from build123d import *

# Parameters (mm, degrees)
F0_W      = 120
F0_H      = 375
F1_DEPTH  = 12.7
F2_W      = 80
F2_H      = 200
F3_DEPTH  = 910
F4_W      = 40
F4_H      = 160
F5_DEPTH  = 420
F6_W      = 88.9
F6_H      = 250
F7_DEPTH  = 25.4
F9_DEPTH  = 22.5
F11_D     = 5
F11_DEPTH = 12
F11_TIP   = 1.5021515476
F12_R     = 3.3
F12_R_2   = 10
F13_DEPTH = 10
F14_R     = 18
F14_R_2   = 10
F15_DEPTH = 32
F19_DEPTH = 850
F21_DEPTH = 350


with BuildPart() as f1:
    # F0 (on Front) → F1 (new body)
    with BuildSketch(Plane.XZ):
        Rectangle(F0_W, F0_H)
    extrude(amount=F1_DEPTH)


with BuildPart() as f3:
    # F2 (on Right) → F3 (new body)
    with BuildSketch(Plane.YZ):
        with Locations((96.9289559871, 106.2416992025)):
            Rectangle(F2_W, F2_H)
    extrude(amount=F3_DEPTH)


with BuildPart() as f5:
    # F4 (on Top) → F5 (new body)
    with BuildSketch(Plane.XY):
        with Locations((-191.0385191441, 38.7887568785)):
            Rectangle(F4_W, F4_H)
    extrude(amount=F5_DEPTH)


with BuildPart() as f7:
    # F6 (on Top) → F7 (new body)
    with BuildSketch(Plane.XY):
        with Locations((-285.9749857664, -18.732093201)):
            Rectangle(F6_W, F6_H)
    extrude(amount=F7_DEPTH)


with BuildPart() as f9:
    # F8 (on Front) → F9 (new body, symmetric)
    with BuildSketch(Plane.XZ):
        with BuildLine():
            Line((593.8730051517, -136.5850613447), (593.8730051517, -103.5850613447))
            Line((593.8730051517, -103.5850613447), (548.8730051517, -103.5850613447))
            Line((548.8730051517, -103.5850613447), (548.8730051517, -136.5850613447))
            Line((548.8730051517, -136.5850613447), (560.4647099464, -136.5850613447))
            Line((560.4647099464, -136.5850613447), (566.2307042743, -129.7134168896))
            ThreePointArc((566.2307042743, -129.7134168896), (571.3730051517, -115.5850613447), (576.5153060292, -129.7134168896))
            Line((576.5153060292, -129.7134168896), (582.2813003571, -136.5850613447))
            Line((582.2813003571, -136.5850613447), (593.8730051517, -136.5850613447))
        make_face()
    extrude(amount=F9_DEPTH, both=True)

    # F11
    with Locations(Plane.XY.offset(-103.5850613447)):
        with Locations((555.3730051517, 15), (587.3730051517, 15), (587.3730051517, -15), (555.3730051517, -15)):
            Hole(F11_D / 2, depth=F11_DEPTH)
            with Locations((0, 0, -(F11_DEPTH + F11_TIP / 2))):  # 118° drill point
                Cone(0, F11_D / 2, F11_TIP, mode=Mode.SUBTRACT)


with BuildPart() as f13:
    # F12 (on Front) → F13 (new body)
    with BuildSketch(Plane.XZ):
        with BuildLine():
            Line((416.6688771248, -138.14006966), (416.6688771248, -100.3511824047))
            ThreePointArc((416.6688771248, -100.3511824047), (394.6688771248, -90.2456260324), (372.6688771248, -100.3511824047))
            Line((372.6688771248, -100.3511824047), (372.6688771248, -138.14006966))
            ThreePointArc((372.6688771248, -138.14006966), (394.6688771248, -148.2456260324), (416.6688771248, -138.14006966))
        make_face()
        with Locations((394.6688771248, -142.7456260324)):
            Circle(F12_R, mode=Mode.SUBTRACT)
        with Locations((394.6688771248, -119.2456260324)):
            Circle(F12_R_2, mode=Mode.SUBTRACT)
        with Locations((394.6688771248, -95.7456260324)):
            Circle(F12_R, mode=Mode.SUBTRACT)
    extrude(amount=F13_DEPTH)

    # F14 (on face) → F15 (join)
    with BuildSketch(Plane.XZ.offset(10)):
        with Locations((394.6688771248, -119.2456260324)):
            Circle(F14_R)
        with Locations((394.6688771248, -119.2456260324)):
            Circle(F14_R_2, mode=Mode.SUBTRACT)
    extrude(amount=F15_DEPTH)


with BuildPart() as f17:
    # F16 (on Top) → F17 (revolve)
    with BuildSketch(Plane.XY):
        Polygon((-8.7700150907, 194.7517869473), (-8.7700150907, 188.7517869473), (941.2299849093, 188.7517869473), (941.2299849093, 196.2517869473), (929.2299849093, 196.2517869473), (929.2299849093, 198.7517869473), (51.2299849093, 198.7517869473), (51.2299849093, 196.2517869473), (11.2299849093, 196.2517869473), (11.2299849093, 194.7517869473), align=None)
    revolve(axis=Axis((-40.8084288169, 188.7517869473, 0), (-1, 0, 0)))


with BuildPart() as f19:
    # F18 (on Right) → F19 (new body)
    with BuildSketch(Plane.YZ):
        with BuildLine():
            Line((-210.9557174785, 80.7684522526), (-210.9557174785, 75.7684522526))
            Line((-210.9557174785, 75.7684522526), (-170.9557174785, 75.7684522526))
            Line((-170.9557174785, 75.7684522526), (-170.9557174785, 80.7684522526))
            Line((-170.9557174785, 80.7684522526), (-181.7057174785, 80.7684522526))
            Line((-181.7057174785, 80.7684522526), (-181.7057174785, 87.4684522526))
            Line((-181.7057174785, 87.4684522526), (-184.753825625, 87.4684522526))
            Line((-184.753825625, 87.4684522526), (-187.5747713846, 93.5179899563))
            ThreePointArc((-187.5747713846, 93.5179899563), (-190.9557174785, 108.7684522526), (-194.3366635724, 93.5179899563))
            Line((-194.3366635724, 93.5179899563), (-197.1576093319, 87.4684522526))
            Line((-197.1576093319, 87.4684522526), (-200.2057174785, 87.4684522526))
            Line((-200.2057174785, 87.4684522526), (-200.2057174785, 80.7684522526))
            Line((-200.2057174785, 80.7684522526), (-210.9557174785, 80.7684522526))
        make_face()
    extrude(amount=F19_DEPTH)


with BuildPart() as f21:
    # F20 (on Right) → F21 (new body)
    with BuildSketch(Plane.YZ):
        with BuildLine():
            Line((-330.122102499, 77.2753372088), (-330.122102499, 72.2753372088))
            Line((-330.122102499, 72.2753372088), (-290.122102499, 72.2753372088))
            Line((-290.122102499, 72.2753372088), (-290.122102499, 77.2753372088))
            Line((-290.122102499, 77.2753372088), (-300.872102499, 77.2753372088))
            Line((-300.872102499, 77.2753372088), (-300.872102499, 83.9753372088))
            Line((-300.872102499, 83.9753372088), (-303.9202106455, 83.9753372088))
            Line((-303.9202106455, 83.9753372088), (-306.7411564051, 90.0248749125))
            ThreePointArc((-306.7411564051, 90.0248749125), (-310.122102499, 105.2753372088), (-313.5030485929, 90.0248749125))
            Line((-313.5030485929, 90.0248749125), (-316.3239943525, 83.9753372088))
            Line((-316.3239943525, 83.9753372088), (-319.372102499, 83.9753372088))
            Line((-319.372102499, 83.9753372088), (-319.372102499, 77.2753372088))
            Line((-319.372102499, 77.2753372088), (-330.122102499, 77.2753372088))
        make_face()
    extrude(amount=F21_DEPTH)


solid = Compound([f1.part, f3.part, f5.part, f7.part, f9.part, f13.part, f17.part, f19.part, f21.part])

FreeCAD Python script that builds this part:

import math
import FreeCAD as App
import Part
import Sketcher

V = App.Vector
Q = App.Units.Quantity

doc = App.newDocument("Part")
body = doc.addObject("PartDesign::Body", "Body")

# Sketch on XZ plane
sketch1 = body.newObject("Sketcher::SketchObject", "Sketch")
sketch1.AttachmentSupport = (doc.getObject("XZ_Plane"), [""])
sketch1.MapMode = "FlatFace"
sketch1.addGeometry(Part.LineSegment(V(-60, 188, 0), V(-60, -188, 0)), False)
sketch1.addGeometry(Part.LineSegment(V(-60, -188, 0), V(60, -188, 0)), False)
sketch1.addGeometry(Part.LineSegment(V(60, -188, 0), V(60, 188, 0)), False)
sketch1.addGeometry(Part.LineSegment(V(60, 188, 0), V(-60, 188, 0)), False)
sketch1.addConstraint(Sketcher.Constraint("Coincident", 0, 2, 1, 1))
sketch1.addConstraint(Sketcher.Constraint("Coincident", 1, 2, 2, 1))
sketch1.addConstraint(Sketcher.Constraint("Coincident", 2, 2, 3, 1))
sketch1.addConstraint(Sketcher.Constraint("Coincident", 3, 2, 0, 1))
sketch1.addConstraint(Sketcher.Constraint("Vertical", 0))
sketch1.addConstraint(Sketcher.Constraint("Horizontal", 1))
sketch1.addConstraint(Sketcher.Constraint("Vertical", 2))
sketch1.addConstraint(Sketcher.Constraint("Horizontal", 3))
sketch1.addConstraint(Sketcher.Constraint("Symmetric", 0, 2, 2, 2, -1, 1))
sketch1.addConstraint(Sketcher.Constraint("DistanceX", 1, 1, 1, 2, 120.0))
sketch1.addConstraint(Sketcher.Constraint("DistanceY", 0, 2, 0, 1, 375.0))
pad1 = body.newObject("PartDesign::Pad", "Pad")
pad1.Profile = sketch1
pad1.Length = 12.7
body2 = doc.addObject("PartDesign::Body", "Body001")

# Sketch on YZ plane
sketch2 = body2.newObject("Sketcher::SketchObject", "Sketch001")
sketch2.AttachmentSupport = (doc.getObject("YZ_Plane001"), [""])
sketch2.MapMode = "FlatFace"
sketch2.addGeometry(Part.LineSegment(V(57, 206, 0), V(57, 6, 0)), False)
sketch2.addGeometry(Part.LineSegment(V(57, 6, 0), V(137, 6, 0)), False)
sketch2.addGeometry(Part.LineSegment(V(137, 6, 0), V(137, 206, 0)), False)
sketch2.addGeometry(Part.LineSegment(V(137, 206, 0), V(57, 206, 0)), False)
sketch2.addConstraint(Sketcher.Constraint("Coincident", 0, 2, 1, 1))
sketch2.addConstraint(Sketcher.Constraint("Coincident", 1, 2, 2, 1))
sketch2.addConstraint(Sketcher.Constraint("Coincident", 2, 2, 3, 1))
sketch2.addConstraint(Sketcher.Constraint("Coincident", 3, 2, 0, 1))
sketch2.addConstraint(Sketcher.Constraint("Vertical", 0))
sketch2.addConstraint(Sketcher.Constraint("Horizontal", 1))
sketch2.addConstraint(Sketcher.Constraint("Vertical", 2))
sketch2.addConstraint(Sketcher.Constraint("Horizontal", 3))
sketch2.addConstraint(Sketcher.Constraint("DistanceX", 1, 1, 1, 2, 80.0))
sketch2.addConstraint(Sketcher.Constraint("DistanceY", 0, 2, 0, 1, 200.0))
sketch2.addConstraint(Sketcher.Constraint("DistanceY", -1, 1, 0, 2, 6.241699))
sketch2.addConstraint(Sketcher.Constraint("DistanceX", -1, 1, 0, 2, 56.928956))
pad2 = body2.newObject("PartDesign::Pad", "Pad001")
pad2.Profile = sketch2
pad2.Length = 910
body3 = doc.addObject("PartDesign::Body", "Body002")

# Sketch on XY plane
sketch3 = body3.newObject("Sketcher::SketchObject", "Sketch002")
sketch3.AttachmentSupport = (doc.getObject("XY_Plane002"), [""])
sketch3.MapMode = "FlatFace"
sketch3.addGeometry(Part.LineSegment(V(-211, 119, 0), V(-211, -41, 0)), False)
sketch3.addGeometry(Part.LineSegment(V(-211, -41, 0), V(-171, -41, 0)), False)
sketch3.addGeometry(Part.LineSegment(V(-171, -41, 0), V(-171, 119, 0)), False)
sketch3.addGeometry(Part.LineSegment(V(-171, 119, 0), V(-211, 119, 0)), False)
sketch3.addConstraint(Sketcher.Constraint("Coincident", 0, 2, 1, 1))
sketch3.addConstraint(Sketcher.Constraint("Coincident", 1, 2, 2, 1))
sketch3.addConstraint(Sketcher.Constraint("Coincident", 2, 2, 3, 1))
sketch3.addConstraint(Sketcher.Constraint("Coincident", 3, 2, 0, 1))
sketch3.addConstraint(Sketcher.Constraint("Vertical", 0))
sketch3.addConstraint(Sketcher.Constraint("Horizontal", 1))
sketch3.addConstraint(Sketcher.Constraint("Vertical", 2))
sketch3.addConstraint(Sketcher.Constraint("Horizontal", 3))
sketch3.addConstraint(Sketcher.Constraint("DistanceX", 1, 1, 1, 2, 40.0))
sketch3.addConstraint(Sketcher.Constraint("DistanceY", 0, 2, 0, 1, 160.0))
sketch3.addConstraint(Sketcher.Constraint("DistanceX", 0, 2, -1, 1, 211.038519))
sketch3.addConstraint(Sketcher.Constraint("DistanceY", 0, 2, -1, 1, 41.211243))
pad3 = body3.newObject("PartDesign::Pad", "Pad002")
pad3.Profile = sketch3
pad3.Length = 420
body4 = doc.addObject("PartDesign::Body", "Body003")

# Sketch on XY plane
sketch4 = body4.newObject("Sketcher::SketchObject", "Sketch003")
sketch4.AttachmentSupport = (doc.getObject("XY_Plane003"), [""])
sketch4.MapMode = "FlatFace"
sketch4.addGeometry(Part.LineSegment(V(-330, 106, 0), V(-330, -144, 0)), False)
sketch4.addGeometry(Part.LineSegment(V(-330, -144, 0), V(-242, -144, 0)), False)
sketch4.addGeometry(Part.LineSegment(V(-242, -144, 0), V(-242, 106, 0)), False)
sketch4.addGeometry(Part.LineSegment(V(-242, 106, 0), V(-330, 106, 0)), False)
sketch4.addConstraint(Sketcher.Constraint("Coincident", 0, 2, 1, 1))
sketch4.addConstraint(Sketcher.Constraint("Coincident", 1, 2, 2, 1))
sketch4.addConstraint(Sketcher.Constraint("Coincident", 2, 2, 3, 1))
sketch4.addConstraint(Sketcher.Constraint("Coincident", 3, 2, 0, 1))
sketch4.addConstraint(Sketcher.Constraint("Vertical", 0))
sketch4.addConstraint(Sketcher.Constraint("Horizontal", 1))
sketch4.addConstraint(Sketcher.Constraint("Vertical", 2))
sketch4.addConstraint(Sketcher.Constraint("Horizontal", 3))
sketch4.addConstraint(Sketcher.Constraint("DistanceY", 0, 2, 0, 1, 250.0))
sketch4.addConstraint(Sketcher.Constraint("DistanceX", 1, 1, 1, 2, 88.9))
sketch4.addConstraint(Sketcher.Constraint("DistanceX", 0, 2, -1, 1, 330.424986))
sketch4.addConstraint(Sketcher.Constraint("DistanceY", 0, 2, -1, 1, 143.732093))
pad4 = body4.newObject("PartDesign::Pad", "Pad003")
pad4.Profile = sketch4
pad4.Length = 25.4
body5 = doc.addObject("PartDesign::Body", "Body004")

# Sketch on XZ plane
sketch5 = body5.newObject("Sketcher::SketchObject", "Sketch004")
sketch5.AttachmentSupport = (doc.getObject("XZ_Plane004"), [""])
sketch5.MapMode = "FlatFace"
sketch5.addGeometry(Part.LineSegment(V(594, -137, 0), V(594, -104, 0)), False)
sketch5.addGeometry(Part.LineSegment(V(594, -104, 0), V(549, -104, 0)), False)
sketch5.addGeometry(Part.LineSegment(V(549, -104, 0), V(549, -137, 0)), False)
sketch5.addGeometry(Part.LineSegment(V(549, -137, 0), V(560, -137, 0)), False)
sketch5.addGeometry(Part.LineSegment(V(560, -137, 0), V(566, -130, 0)), False)
sketch5.addGeometry(Part.ArcOfCircle(Part.Circle(V(571, -124, 0), V(0, 0, 1), 8), math.radians(-50), math.radians(230)), False)
sketch5.addGeometry(Part.LineSegment(V(577, -130, 0), V(582, -137, 0)), False)
sketch5.addGeometry(Part.LineSegment(V(582, -137, 0), V(594, -137, 0)), False)
sketch5.addConstraint(Sketcher.Constraint("Coincident", 0, 2, 1, 1))
sketch5.addConstraint(Sketcher.Constraint("Coincident", 1, 2, 2, 1))
sketch5.addConstraint(Sketcher.Constraint("Coincident", 2, 2, 3, 1))
sketch5.addConstraint(Sketcher.Constraint("Coincident", 3, 2, 4, 1))
sketch5.addConstraint(Sketcher.Constraint("Coincident", 4, 2, 5, 2))
sketch5.addConstraint(Sketcher.Constraint("Coincident", 5, 1, 6, 1))
sketch5.addConstraint(Sketcher.Constraint("Coincident", 6, 2, 7, 1))
sketch5.addConstraint(Sketcher.Constraint("Coincident", 7, 2, 0, 1))
sketch5.addConstraint(Sketcher.Constraint("Vertical", 0))
sketch5.addConstraint(Sketcher.Constraint("Horizontal", 1))
sketch5.addConstraint(Sketcher.Constraint("Vertical", 2))
sketch5.addConstraint(Sketcher.Constraint("Horizontal", 3))
sketch5.addConstraint(Sketcher.Constraint("Horizontal", 7))
sketch5.addConstraint(Sketcher.Constraint("Horizontal", 4, 2, 5, 1))
sketch5.addConstraint(Sketcher.Constraint("Horizontal", 3, 2, 6, 2))
sketch5.addConstraint(Sketcher.Constraint("Equal", 3, 7))
sketch5.addConstraint(Sketcher.Constraint("Equal", 4, 6))
sketch5.addConstraint(Sketcher.Constraint("Radius", 5, 8.0))
sketch5.addConstraint(Sketcher.Constraint("DistanceX", 1, 2, 1, 1, 45.0))
sketch5.addConstraint(Sketcher.Constraint("DistanceY", 0, 1, 0, 2, 33.0))
sketch5.addConstraint(Sketcher.Constraint("Angle", 4, Q("50 deg")))
sketch5.addConstraint(Sketcher.Constraint("DistanceY", 5, 3, 0, 2, 20.0))
sketch5.addConstraint(Sketcher.Constraint("DistanceX", -1, 1, 6, 2, 582.2813))
sketch5.addConstraint(Sketcher.Constraint("DistanceX", 4, 2, 5, 3, 5.142301))
sketch5.addConstraint(Sketcher.Constraint("DistanceY", 5, 3, -1, 1, 123.585061))
pad5 = body5.newObject("PartDesign::Pad", "Pad004")
pad5.Profile = sketch5
pad5.Length = 45
pad5.Midplane = True

# Sketch on XY plane
sketch6 = body5.newObject("Sketcher::SketchObject", "Sketch005")
sketch6.AttachmentSupport = (doc.getObject("XY_Plane004"), [""])
sketch6.MapMode = "FlatFace"
sketch6.AttachmentOffset = App.Placement(V(0, 0, -103.585061), App.Rotation())
sketch6.addGeometry(Part.Circle(V(555.4, 15, 0), V(0, 0, 1), 2.5), False)
sketch6.addGeometry(Part.Circle(V(587.4, 15, 0), V(0, 0, 1), 2.5), False)
sketch6.addGeometry(Part.Circle(V(587.4, -15, 0), V(0, 0, 1), 2.5), False)
sketch6.addGeometry(Part.Circle(V(555.4, -15, 0), V(0, 0, 1), 2.5), False)
sketch6.addConstraint(Sketcher.Constraint("Equal", 0, 1))
sketch6.addConstraint(Sketcher.Constraint("Equal", 1, 2))
sketch6.addConstraint(Sketcher.Constraint("Equal", 2, 3))
sketch6.addConstraint(Sketcher.Constraint("Symmetric", 1, 3, 2, 3, -1))
sketch6.addConstraint(Sketcher.Constraint("Symmetric", 0, 3, 3, 3, -1))
sketch6.addConstraint(Sketcher.Constraint("Horizontal", 0, 3, 1, 3))
sketch6.addConstraint(Sketcher.Constraint("Diameter", 0, 5.0))
sketch6.addConstraint(Sketcher.Constraint("DistanceY", -1, 1, 0, 3, 15.0))
sketch6.addConstraint(Sketcher.Constraint("DistanceX", 0, 3, 1, 3, 32.0))
sketch6.addConstraint(Sketcher.Constraint("DistanceX", -1, 1, 0, 3, 555.373005))
doc.recompute()
hole = body5.newObject("PartDesign::Hole", "Hole")
hole.Profile = sketch6
hole.ThreadType = "None"
hole.Diameter = 5
hole.DepthType = "Dimension"
hole.Depth = 12
hole.DrillPoint = "Angled"
hole.DrillPointAngle = 118
body6 = doc.addObject("PartDesign::Body", "Body005")

# Sketch on XZ plane
sketch7 = body6.newObject("Sketcher::SketchObject", "Sketch006")
sketch7.AttachmentSupport = (doc.getObject("XZ_Plane005"), [""])
sketch7.MapMode = "FlatFace"
sketch7.addGeometry(Part.LineSegment(V(416.7, -138.1, 0), V(416.7, -100.4, 0)), False)
sketch7.addGeometry(Part.ArcOfCircle(Part.Circle(V(394.7, -119.2, 0), V(0, 0, 1), 29), math.radians(41), math.radians(139)), False)
sketch7.addGeometry(Part.LineSegment(V(372.7, -100.4, 0), V(372.7, -138.1, 0)), False)
sketch7.addGeometry(Part.ArcOfCircle(Part.Circle(V(394.7, -119.2, 0), V(0, 0, 1), 29), math.radians(-139), math.radians(-41)), False)
sketch7.addGeometry(Part.Circle(V(394.7, -142.7, 0), V(0, 0, 1), 3.3), False)
sketch7.addGeometry(Part.Circle(V(394.7, -119.2, 0), V(0, 0, 1), 10), False)
sketch7.addGeometry(Part.Circle(V(394.7, -95.7, 0), V(0, 0, 1), 3.3), False)
sketch7.addConstraint(Sketcher.Constraint("Coincident", 0, 2, 1, 1))
sketch7.addConstraint(Sketcher.Constraint("Coincident", 1, 2, 2, 1))
sketch7.addConstraint(Sketcher.Constraint("Coincident", 2, 2, 3, 1))
sketch7.addConstraint(Sketcher.Constraint("Coincident", 3, 2, 0, 1))
sketch7.addConstraint(Sketcher.Constraint("Vertical", 0))
sketch7.addConstraint(Sketcher.Constraint("Vertical", 2))
sketch7.addConstraint(Sketcher.Constraint("Coincident", 3, 3, 1, 3))
sketch7.addConstraint(Sketcher.Constraint("Coincident", 5, 3, 1, 3))
sketch7.addConstraint(Sketcher.Constraint("Equal", 1, 3))
sketch7.addConstraint(Sketcher.Constraint("Equal", 4, 6))
sketch7.addConstraint(Sketcher.Constraint("Horizontal", 0, 2, 1, 2))
sketch7.addConstraint(Sketcher.Constraint("Vertical", 3, 3, 4, 3))
sketch7.addConstraint(Sketcher.Constraint("Vertical", 5, 3, 6, 3))
sketch7.addConstraint(Sketcher.Constraint("Diameter", 5, 20.0))
sketch7.addConstraint(Sketcher.Constraint("Radius", 1, 29.0))
sketch7.addConstraint(Sketcher.Constraint("Diameter", 4, 6.6))
sketch7.addConstraint(Sketcher.Constraint("DistanceY", 4, 3, 6, 3, 47.0))
sketch7.addConstraint(Sketcher.Constraint("DistanceX", 6, 3, 0, 2, 22.0))
sketch7.addConstraint(Sketcher.Constraint("DistanceY", 4, 3, 3, 3, 23.5))
sketch7.addConstraint(Sketcher.Constraint("DistanceY", 2, 2, -1, 1, 138.14007))
sketch7.addConstraint(Sketcher.Constraint("DistanceX", -1, 1, 1, 3, 394.668877))
pad6 = body6.newObject("PartDesign::Pad", "Pad005")
pad6.Profile = sketch7
pad6.Length = 10

# Sketch on XZ plane
sketch8 = body6.newObject("Sketcher::SketchObject", "Sketch007")
sketch8.AttachmentSupport = (doc.getObject("XZ_Plane005"), [""])
sketch8.MapMode = "FlatFace"
sketch8.AttachmentOffset = App.Placement(V(0, 0, 10), App.Rotation())
sketch8.addGeometry(Part.Circle(V(395, -119, 0), V(0, 0, 1), 18), False)
sketch8.addGeometry(Part.Circle(V(395, -119, 0), V(0, 0, 1), 10), False)
sketch8.addConstraint(Sketcher.Constraint("Coincident", 1, 3, 0, 3))
sketch8.addConstraint(Sketcher.Constraint("Diameter", 0, 36.0))
sketch8.addConstraint(Sketcher.Constraint("Diameter", 1, 20.0))
sketch8.addConstraint(Sketcher.Constraint("DistanceX", -1, 1, 0, 3, 394.668877))
sketch8.addConstraint(Sketcher.Constraint("DistanceY", 0, 3, -1, 1, 119.245626))
pad7 = body6.newObject("PartDesign::Pad", "Pad006")
pad7.Profile = sketch8
pad7.Length = 32
body7 = doc.addObject("PartDesign::Body", "Body006")

# Sketch on XY plane
sketch9 = body7.newObject("Sketcher::SketchObject", "Sketch008")
sketch9.AttachmentSupport = (doc.getObject("XY_Plane006"), [""])
sketch9.MapMode = "FlatFace"
sketch9.addGeometry(Part.LineSegment(V(-8.8, 194.8, 0), V(-8.8, 188.8, 0)), False)
sketch9.addGeometry(Part.LineSegment(V(-8.8, 188.8, 0), V(941.2, 188.8, 0)), False)
sketch9.addGeometry(Part.LineSegment(V(941.2, 188.8, 0), V(941.2, 196.3, 0)), False)
sketch9.addGeometry(Part.LineSegment(V(941.2, 196.3, 0), V(929.2, 196.3, 0)), False)
sketch9.addGeometry(Part.LineSegment(V(929.2, 196.3, 0), V(929.2, 198.8, 0)), False)
sketch9.addGeometry(Part.LineSegment(V(929.2, 198.8, 0), V(51.2, 198.8, 0)), False)
sketch9.addGeometry(Part.LineSegment(V(51.2, 198.8, 0), V(51.2, 196.3, 0)), False)
sketch9.addGeometry(Part.LineSegment(V(51.2, 196.3, 0), V(11.2, 196.3, 0)), False)
sketch9.addGeometry(Part.LineSegment(V(11.2, 196.3, 0), V(11.2, 194.8, 0)), False)
sketch9.addGeometry(Part.LineSegment(V(11.2, 194.8, 0), V(-8.8, 194.8, 0)), False)
sketch9.addGeometry(Part.LineSegment(V(941.2, 188.8, 0), V(-8.8, 188.8, 0)), True)  # axis
sketch9.addConstraint(Sketcher.Constraint("Coincident", 0, 2, 1, 1))
sketch9.addConstraint(Sketcher.Constraint("Coincident", 1, 2, 2, 1))
sketch9.addConstraint(Sketcher.Constraint("Coincident", 2, 2, 3, 1))
sketch9.addConstraint(Sketcher.Constraint("Coincident", 3, 2, 4, 1))
sketch9.addConstraint(Sketcher.Constraint("Coincident", 4, 2, 5, 1))
sketch9.addConstraint(Sketcher.Constraint("Coincident", 5, 2, 6, 1))
sketch9.addConstraint(Sketcher.Constraint("Coincident", 6, 2, 7, 1))
sketch9.addConstraint(Sketcher.Constraint("Coincident", 7, 2, 8, 1))
sketch9.addConstraint(Sketcher.Constraint("Coincident", 8, 2, 9, 1))
sketch9.addConstraint(Sketcher.Constraint("Coincident", 9, 2, 0, 1))
sketch9.addConstraint(Sketcher.Constraint("Vertical", 0))
sketch9.addConstraint(Sketcher.Constraint("Horizontal", 1))
sketch9.addConstraint(Sketcher.Constraint("Vertical", 2))
sketch9.addConstraint(Sketcher.Constraint("Horizontal", 3))
sketch9.addConstraint(Sketcher.Constraint("Vertical", 4))
sketch9.addConstraint(Sketcher.Constraint("Horizontal", 5))
sketch9.addConstraint(Sketcher.Constraint("Vertical", 6))
sketch9.addConstraint(Sketcher.Constraint("Horizontal", 7))
sketch9.addConstraint(Sketcher.Constraint("Vertical", 8))
sketch9.addConstraint(Sketcher.Constraint("Horizontal", 9))
sketch9.addConstraint(Sketcher.Constraint("Horizontal", 10))
sketch9.addConstraint(Sketcher.Constraint("Coincident", 10, 1, 1, 2))
sketch9.addConstraint(Sketcher.Constraint("Horizontal", 3, 2, 6, 2))
sketch9.addConstraint(Sketcher.Constraint("Vertical", 9, 2, 10, 2))
sketch9.addConstraint(Sketcher.Constraint("DistanceX", 1, 1, 1, 2, 950.0))
sketch9.addConstraint(Sketcher.Constraint("DistanceX", 3, 2, 3, 1, 12.0))
sketch9.addConstraint(Sketcher.Constraint("DistanceX", 5, 2, 5, 1, 878.0))
sketch9.addConstraint(Sketcher.Constraint("DistanceX", 7, 2, 7, 1, 40.0))
sketch9.addConstraint(Sketcher.Constraint("DistanceY", 0, 2, 0, 1, 6.0))
sketch9.addConstraint(Sketcher.Constraint("DistanceY", 2, 1, 2, 2, 7.5))
sketch9.addConstraint(Sketcher.Constraint("DistanceY", 4, 1, 4, 2, 2.5))
sketch9.addConstraint(Sketcher.Constraint("DistanceX", 0, 2, -1, 1, 8.770015))
sketch9.addConstraint(Sketcher.Constraint("DistanceY", -1, 1, 0, 2, 188.751787))
revolution = body7.newObject("PartDesign::Revolution", "Revolution")
revolution.Profile = sketch9
revolution.ReferenceAxis = (sketch9, ["Axis0"])
revolution.Angle = 360
body8 = doc.addObject("PartDesign::Body", "Body007")

# Sketch on YZ plane
sketch10 = body8.newObject("Sketcher::SketchObject", "Sketch009")
sketch10.AttachmentSupport = (doc.getObject("YZ_Plane007"), [""])
sketch10.MapMode = "FlatFace"
sketch10.addGeometry(Part.LineSegment(V(-211, 80.8, 0), V(-211, 75.8, 0)), False)
sketch10.addGeometry(Part.LineSegment(V(-211, 75.8, 0), V(-171, 75.8, 0)), False)
sketch10.addGeometry(Part.LineSegment(V(-171, 75.8, 0), V(-171, 80.8, 0)), False)
sketch10.addGeometry(Part.LineSegment(V(-171, 80.8, 0), V(-181.7, 80.8, 0)), False)
sketch10.addGeometry(Part.LineSegment(V(-181.7, 80.8, 0), V(-181.7, 87.5, 0)), False)
sketch10.addGeometry(Part.LineSegment(V(-181.7, 87.5, 0), V(-184.8, 87.5, 0)), False)
sketch10.addGeometry(Part.LineSegment(V(-184.8, 87.5, 0), V(-187.6, 93.5, 0)), False)
sketch10.addGeometry(Part.ArcOfCircle(Part.Circle(V(-191, 100.8, 0), V(0, 0, 1), 8), math.radians(-65), math.radians(245)), False)
sketch10.addGeometry(Part.LineSegment(V(-194.3, 93.5, 0), V(-197.2, 87.5, 0)), False)
sketch10.addGeometry(Part.LineSegment(V(-197.2, 87.5, 0), V(-200.2, 87.5, 0)), False)
sketch10.addGeometry(Part.LineSegment(V(-200.2, 87.5, 0), V(-200.2, 80.8, 0)), False)
sketch10.addGeometry(Part.LineSegment(V(-200.2, 80.8, 0), V(-211, 80.8, 0)), False)
sketch10.addConstraint(Sketcher.Constraint("Coincident", 0, 2, 1, 1))
sketch10.addConstraint(Sketcher.Constraint("Coincident", 1, 2, 2, 1))
sketch10.addConstraint(Sketcher.Constraint("Coincident", 2, 2, 3, 1))
sketch10.addConstraint(Sketcher.Constraint("Coincident", 3, 2, 4, 1))
sketch10.addConstraint(Sketcher.Constraint("Coincident", 4, 2, 5, 1))
sketch10.addConstraint(Sketcher.Constraint("Coincident", 5, 2, 6, 1))
sketch10.addConstraint(Sketcher.Constraint("Coincident", 6, 2, 7, 1))
sketch10.addConstraint(Sketcher.Constraint("Coincident", 7, 2, 8, 1))
sketch10.addConstraint(Sketcher.Constraint("Coincident", 8, 2, 9, 1))
sketch10.addConstraint(Sketcher.Constraint("Coincident", 9, 2, 10, 1))
sketch10.addConstraint(Sketcher.Constraint("Coincident", 10, 2, 11, 1))
sketch10.addConstraint(Sketcher.Constraint("Coincident", 11, 2, 0, 1))
sketch10.addConstraint(Sketcher.Constraint("Vertical", 0))
sketch10.addConstraint(Sketcher.Constraint("Horizontal", 1))
sketch10.addConstraint(Sketcher.Constraint("Vertical", 2))
sketch10.addConstraint(Sketcher.Constraint("Horizontal", 3))
sketch10.addConstraint(Sketcher.Constraint("Vertical", 4))
sketch10.addConstraint(Sketcher.Constraint("Horizontal", 5))
sketch10.addConstraint(Sketcher.Constraint("Horizontal", 9))
sketch10.addConstraint(Sketcher.Constraint("Vertical", 10))
sketch10.addConstraint(Sketcher.Constraint("Horizontal", 11))
sketch10.addConstraint(Sketcher.Constraint("Horizontal", 6, 2, 7, 2))
sketch10.addConstraint(Sketcher.Constraint("Horizontal", 5, 2, 8, 2))
sketch10.addConstraint(Sketcher.Constraint("Horizontal", 3, 2, 10, 2))
sketch10.addConstraint(Sketcher.Constraint("Equal", 5, 9))
sketch10.addConstraint(Sketcher.Constraint("Equal", 3, 11))
sketch10.addConstraint(Sketcher.Constraint("Equal", 6, 8))
sketch10.addConstraint(Sketcher.Constraint("Radius", 7, 8.0))
sketch10.addConstraint(Sketcher.Constraint("DistanceX", 1, 1, 1, 2, 40.0))
sketch10.addConstraint(Sketcher.Constraint("DistanceY", 0, 2, 0, 1, 5.0))
sketch10.addConstraint(Sketcher.Constraint("Angle", 6, Q("115 deg")))
sketch10.addConstraint(Sketcher.Constraint("DistanceY", 4, 1, 4, 2, 6.7))
sketch10.addConstraint(Sketcher.Constraint("DistanceY", 0, 2, 7, 3, 25.0))
sketch10.addConstraint(Sketcher.Constraint("DistanceX", 3, 2, 3, 1, 10.75))
sketch10.addConstraint(Sketcher.Constraint("DistanceX", 5, 2, 5, 1, 3.048108))
sketch10.addConstraint(Sketcher.Constraint("DistanceX", 6, 2, -1, 1, 187.574771))
sketch10.addConstraint(Sketcher.Constraint("DistanceY", -1, 1, 6, 2, 93.51799))
pad8 = body8.newObject("PartDesign::Pad", "Pad007")
pad8.Profile = sketch10
pad8.Length = 850
body9 = doc.addObject("PartDesign::Body", "Body008")

# Sketch on YZ plane
sketch11 = body9.newObject("Sketcher::SketchObject", "Sketch010")
sketch11.AttachmentSupport = (doc.getObject("YZ_Plane008"), [""])
sketch11.MapMode = "FlatFace"
sketch11.addGeometry(Part.LineSegment(V(-330.1, 77.3, 0), V(-330.1, 72.3, 0)), False)
sketch11.addGeometry(Part.LineSegment(V(-330.1, 72.3, 0), V(-290.1, 72.3, 0)), False)
sketch11.addGeometry(Part.LineSegment(V(-290.1, 72.3, 0), V(-290.1, 77.3, 0)), False)
sketch11.addGeometry(Part.LineSegment(V(-290.1, 77.3, 0), V(-300.9, 77.3, 0)), False)
sketch11.addGeometry(Part.LineSegment(V(-300.9, 77.3, 0), V(-300.9, 84, 0)), False)
sketch11.addGeometry(Part.LineSegment(V(-300.9, 84, 0), V(-303.9, 84, 0)), False)
sketch11.addGeometry(Part.LineSegment(V(-303.9, 84, 0), V(-306.7, 90, 0)), False)
sketch11.addGeometry(Part.ArcOfCircle(Part.Circle(V(-310.1, 97.3, 0), V(0, 0, 1), 8), math.radians(-65), math.radians(245)), False)
sketch11.addGeometry(Part.LineSegment(V(-313.5, 90, 0), V(-316.3, 84, 0)), False)
sketch11.addGeometry(Part.LineSegment(V(-316.3, 84, 0), V(-319.4, 84, 0)), False)
sketch11.addGeometry(Part.LineSegment(V(-319.4, 84, 0), V(-319.4, 77.3, 0)), False)
sketch11.addGeometry(Part.LineSegment(V(-319.4, 77.3, 0), V(-330.1, 77.3, 0)), False)
sketch11.addConstraint(Sketcher.Constraint("Coincident", 0, 2, 1, 1))
sketch11.addConstraint(Sketcher.Constraint("Coincident", 1, 2, 2, 1))
sketch11.addConstraint(Sketcher.Constraint("Coincident", 2, 2, 3, 1))
sketch11.addConstraint(Sketcher.Constraint("Coincident", 3, 2, 4, 1))
sketch11.addConstraint(Sketcher.Constraint("Coincident", 4, 2, 5, 1))
sketch11.addConstraint(Sketcher.Constraint("Coincident", 5, 2, 6, 1))
sketch11.addConstraint(Sketcher.Constraint("Coincident", 6, 2, 7, 1))
sketch11.addConstraint(Sketcher.Constraint("Coincident", 7, 2, 8, 1))
sketch11.addConstraint(Sketcher.Constraint("Coincident", 8, 2, 9, 1))
sketch11.addConstraint(Sketcher.Constraint("Coincident", 9, 2, 10, 1))
sketch11.addConstraint(Sketcher.Constraint("Coincident", 10, 2, 11, 1))
sketch11.addConstraint(Sketcher.Constraint("Coincident", 11, 2, 0, 1))
sketch11.addConstraint(Sketcher.Constraint("Vertical", 0))
sketch11.addConstraint(Sketcher.Constraint("Horizontal", 1))
sketch11.addConstraint(Sketcher.Constraint("Vertical", 2))
sketch11.addConstraint(Sketcher.Constraint("Horizontal", 3))
sketch11.addConstraint(Sketcher.Constraint("Vertical", 4))
sketch11.addConstraint(Sketcher.Constraint("Horizontal", 5))
sketch11.addConstraint(Sketcher.Constraint("Horizontal", 9))
sketch11.addConstraint(Sketcher.Constraint("Vertical", 10))
sketch11.addConstraint(Sketcher.Constraint("Horizontal", 11))
sketch11.addConstraint(Sketcher.Constraint("Horizontal", 6, 2, 7, 2))
sketch11.addConstraint(Sketcher.Constraint("Horizontal", 5, 2, 8, 2))
sketch11.addConstraint(Sketcher.Constraint("Horizontal", 3, 2, 10, 2))
sketch11.addConstraint(Sketcher.Constraint("Equal", 5, 9))
sketch11.addConstraint(Sketcher.Constraint("Equal", 3, 11))
sketch11.addConstraint(Sketcher.Constraint("Equal", 6, 8))
sketch11.addConstraint(Sketcher.Constraint("Radius", 7, 8.0))
sketch11.addConstraint(Sketcher.Constraint("DistanceX", 1, 1, 1, 2, 40.0))
sketch11.addConstraint(Sketcher.Constraint("DistanceY", 0, 2, 0, 1, 5.0))
sketch11.addConstraint(Sketcher.Constraint("Angle", 6, Q("115 deg")))
sketch11.addConstraint(Sketcher.Constraint("DistanceY", 4, 1, 4, 2, 6.7))
sketch11.addConstraint(Sketcher.Constraint("DistanceY", 0, 2, 7, 3, 25.0))
sketch11.addConstraint(Sketcher.Constraint("DistanceX", 3, 2, 3, 1, 10.75))
sketch11.addConstraint(Sketcher.Constraint("DistanceX", 5, 2, 5, 1, 3.048108))
sketch11.addConstraint(Sketcher.Constraint("DistanceX", 5, 2, -1, 1, 303.920211))
sketch11.addConstraint(Sketcher.Constraint("DistanceY", -1, 1, 7, 3, 97.275337))
pad9 = body9.newObject("PartDesign::Pad", "Pad008")
pad9.Profile = sketch11
pad9.Length = 350

doc.recompute()
